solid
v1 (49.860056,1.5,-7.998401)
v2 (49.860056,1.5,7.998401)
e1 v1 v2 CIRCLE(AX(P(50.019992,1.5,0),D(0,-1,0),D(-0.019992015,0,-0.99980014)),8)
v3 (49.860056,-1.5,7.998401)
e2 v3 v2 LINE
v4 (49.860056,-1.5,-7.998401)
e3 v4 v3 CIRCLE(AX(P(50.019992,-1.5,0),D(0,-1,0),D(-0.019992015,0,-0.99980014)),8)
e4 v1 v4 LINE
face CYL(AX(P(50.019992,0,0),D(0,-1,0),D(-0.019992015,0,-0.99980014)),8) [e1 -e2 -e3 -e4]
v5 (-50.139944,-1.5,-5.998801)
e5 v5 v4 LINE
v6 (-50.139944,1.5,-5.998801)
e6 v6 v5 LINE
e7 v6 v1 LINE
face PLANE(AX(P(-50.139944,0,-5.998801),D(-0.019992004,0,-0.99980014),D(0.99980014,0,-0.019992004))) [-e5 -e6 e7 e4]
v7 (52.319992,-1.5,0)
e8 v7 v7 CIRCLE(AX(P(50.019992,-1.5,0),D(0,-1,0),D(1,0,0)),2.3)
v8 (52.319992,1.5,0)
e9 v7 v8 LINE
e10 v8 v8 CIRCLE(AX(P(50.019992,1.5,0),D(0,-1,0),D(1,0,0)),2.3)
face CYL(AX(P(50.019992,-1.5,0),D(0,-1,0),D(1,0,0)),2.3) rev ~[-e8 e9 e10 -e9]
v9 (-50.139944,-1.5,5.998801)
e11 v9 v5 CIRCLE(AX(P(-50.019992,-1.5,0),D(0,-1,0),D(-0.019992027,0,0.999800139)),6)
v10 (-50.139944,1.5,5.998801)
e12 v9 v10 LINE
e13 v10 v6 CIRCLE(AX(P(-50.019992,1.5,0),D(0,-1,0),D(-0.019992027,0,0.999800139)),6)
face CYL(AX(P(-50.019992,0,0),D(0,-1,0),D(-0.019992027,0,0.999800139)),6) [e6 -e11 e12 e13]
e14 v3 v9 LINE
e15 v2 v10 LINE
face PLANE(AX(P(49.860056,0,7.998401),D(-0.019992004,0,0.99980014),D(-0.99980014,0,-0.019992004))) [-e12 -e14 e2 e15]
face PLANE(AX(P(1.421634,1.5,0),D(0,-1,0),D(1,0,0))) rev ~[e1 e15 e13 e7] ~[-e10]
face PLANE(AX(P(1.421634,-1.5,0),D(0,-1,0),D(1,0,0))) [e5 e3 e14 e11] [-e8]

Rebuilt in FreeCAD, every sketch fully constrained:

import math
import FreeCAD as App
import Part
import Sketcher

V = App.Vector
Q = App.Units.Quantity

doc = App.newDocument("Part")
params = doc.addObject("Spreadsheet::Sheet", "Params")
for row, (alias, value) in enumerate([
    ("sketch1_radius", "6 mm"),
    ("sketch1_radius2", "8 mm"),
    ("pad1_length", "3 mm"),
    ("sketch2_diameter", "4.6 mm"),
    ("pocket1_length", "25 mm"),
], start=1):
    params.set(f"A{row}", alias)
    params.set(f"B{row}", "=" + value)
    params.setAlias(f"B{row}", alias)

body = doc.addObject("PartDesign::Body", "Body")

# Sketch on XZ plane
sketch1 = body.newObject("Sketcher::SketchObject", "Sketch")
sketch1.AttachmentSupport = (doc.getObject("XZ_Plane"), [""])
sketch1.MapMode = "FlatFace"
sketch1.addGeometry([
    Part.ArcOfCircle(Part.Circle(V(-50, 0, 0), V(0, 0, 1), 6), math.radians(91), math.radians(269)),
    Part.LineSegment(V(-50, -6, 0), V(50, -8, 0)),
    Part.ArcOfCircle(Part.Circle(V(50, 0, 0), V(0, 0, 1), 8), math.radians(-91), math.radians(91)),
    Part.LineSegment(V(50, 8, 0), V(-50, 6, 0)),
], False)
sketch1.addConstraint([
    Sketcher.Constraint("Tangent", 0, 2, 1, 1),
    Sketcher.Constraint("Tangent", 1, 2, 2, 1),
    Sketcher.Constraint("Tangent", 2, 2, 3, 1),
    Sketcher.Constraint("Tangent", 3, 2, 0, 1),
    Sketcher.Constraint("Symmetric", 0, 3, 2, 3, -1, 1),
    Sketcher.Constraint("PointOnObject", 0, 3, -1),
    Sketcher.Constraint("Radius", 0, Q("6 mm")),
    Sketcher.Constraint("Radius", 2, Q("8 mm")),
    Sketcher.Constraint("DistanceX", 0, 2, 1, 2, Q("100 mm")),
])
sketch1.setExpression("Constraints[6]", "Params.sketch1_radius")
sketch1.setExpression("Constraints[7]", "Params.sketch1_radius2")
pad1 = body.newObject("PartDesign::Pad", "Pad")
pad1.Profile = sketch1
pad1.setExpression("Length", "Params.pad1_length")
pad1.Midplane = True

# Sketch on XZ plane
sketch2 = body.newObject("Sketcher::SketchObject", "Sketch001")
sketch2.AttachmentSupport = (doc.getObject("XZ_Plane"), [""])
sketch2.MapMode = "FlatFace"
sketch2.AttachmentOffset = App.Placement(V(0, 0, 1.5), App.Rotation())
sketch2.addGeometry(Part.Circle(V(50, 0, 0), V(0, 0, 1), 2.3), False)
sketch2.addConstraint([
    Sketcher.Constraint("PointOnObject", 0, 3, -1),
    Sketcher.Constraint("Diameter", 0, Q("4.6 mm")),
    Sketcher.Constraint("DistanceX", -1, 1, 0, 3, Q("50.019992 mm")),
])
sketch2.setExpression("Constraints[1]", "Params.sketch2_diameter")
pocket1 = body.newObject("PartDesign::Pocket", "Pocket")
pocket1.Profile = sketch2
pocket1.setExpression("Length", "Params.pocket1_length")

doc.recompute()
